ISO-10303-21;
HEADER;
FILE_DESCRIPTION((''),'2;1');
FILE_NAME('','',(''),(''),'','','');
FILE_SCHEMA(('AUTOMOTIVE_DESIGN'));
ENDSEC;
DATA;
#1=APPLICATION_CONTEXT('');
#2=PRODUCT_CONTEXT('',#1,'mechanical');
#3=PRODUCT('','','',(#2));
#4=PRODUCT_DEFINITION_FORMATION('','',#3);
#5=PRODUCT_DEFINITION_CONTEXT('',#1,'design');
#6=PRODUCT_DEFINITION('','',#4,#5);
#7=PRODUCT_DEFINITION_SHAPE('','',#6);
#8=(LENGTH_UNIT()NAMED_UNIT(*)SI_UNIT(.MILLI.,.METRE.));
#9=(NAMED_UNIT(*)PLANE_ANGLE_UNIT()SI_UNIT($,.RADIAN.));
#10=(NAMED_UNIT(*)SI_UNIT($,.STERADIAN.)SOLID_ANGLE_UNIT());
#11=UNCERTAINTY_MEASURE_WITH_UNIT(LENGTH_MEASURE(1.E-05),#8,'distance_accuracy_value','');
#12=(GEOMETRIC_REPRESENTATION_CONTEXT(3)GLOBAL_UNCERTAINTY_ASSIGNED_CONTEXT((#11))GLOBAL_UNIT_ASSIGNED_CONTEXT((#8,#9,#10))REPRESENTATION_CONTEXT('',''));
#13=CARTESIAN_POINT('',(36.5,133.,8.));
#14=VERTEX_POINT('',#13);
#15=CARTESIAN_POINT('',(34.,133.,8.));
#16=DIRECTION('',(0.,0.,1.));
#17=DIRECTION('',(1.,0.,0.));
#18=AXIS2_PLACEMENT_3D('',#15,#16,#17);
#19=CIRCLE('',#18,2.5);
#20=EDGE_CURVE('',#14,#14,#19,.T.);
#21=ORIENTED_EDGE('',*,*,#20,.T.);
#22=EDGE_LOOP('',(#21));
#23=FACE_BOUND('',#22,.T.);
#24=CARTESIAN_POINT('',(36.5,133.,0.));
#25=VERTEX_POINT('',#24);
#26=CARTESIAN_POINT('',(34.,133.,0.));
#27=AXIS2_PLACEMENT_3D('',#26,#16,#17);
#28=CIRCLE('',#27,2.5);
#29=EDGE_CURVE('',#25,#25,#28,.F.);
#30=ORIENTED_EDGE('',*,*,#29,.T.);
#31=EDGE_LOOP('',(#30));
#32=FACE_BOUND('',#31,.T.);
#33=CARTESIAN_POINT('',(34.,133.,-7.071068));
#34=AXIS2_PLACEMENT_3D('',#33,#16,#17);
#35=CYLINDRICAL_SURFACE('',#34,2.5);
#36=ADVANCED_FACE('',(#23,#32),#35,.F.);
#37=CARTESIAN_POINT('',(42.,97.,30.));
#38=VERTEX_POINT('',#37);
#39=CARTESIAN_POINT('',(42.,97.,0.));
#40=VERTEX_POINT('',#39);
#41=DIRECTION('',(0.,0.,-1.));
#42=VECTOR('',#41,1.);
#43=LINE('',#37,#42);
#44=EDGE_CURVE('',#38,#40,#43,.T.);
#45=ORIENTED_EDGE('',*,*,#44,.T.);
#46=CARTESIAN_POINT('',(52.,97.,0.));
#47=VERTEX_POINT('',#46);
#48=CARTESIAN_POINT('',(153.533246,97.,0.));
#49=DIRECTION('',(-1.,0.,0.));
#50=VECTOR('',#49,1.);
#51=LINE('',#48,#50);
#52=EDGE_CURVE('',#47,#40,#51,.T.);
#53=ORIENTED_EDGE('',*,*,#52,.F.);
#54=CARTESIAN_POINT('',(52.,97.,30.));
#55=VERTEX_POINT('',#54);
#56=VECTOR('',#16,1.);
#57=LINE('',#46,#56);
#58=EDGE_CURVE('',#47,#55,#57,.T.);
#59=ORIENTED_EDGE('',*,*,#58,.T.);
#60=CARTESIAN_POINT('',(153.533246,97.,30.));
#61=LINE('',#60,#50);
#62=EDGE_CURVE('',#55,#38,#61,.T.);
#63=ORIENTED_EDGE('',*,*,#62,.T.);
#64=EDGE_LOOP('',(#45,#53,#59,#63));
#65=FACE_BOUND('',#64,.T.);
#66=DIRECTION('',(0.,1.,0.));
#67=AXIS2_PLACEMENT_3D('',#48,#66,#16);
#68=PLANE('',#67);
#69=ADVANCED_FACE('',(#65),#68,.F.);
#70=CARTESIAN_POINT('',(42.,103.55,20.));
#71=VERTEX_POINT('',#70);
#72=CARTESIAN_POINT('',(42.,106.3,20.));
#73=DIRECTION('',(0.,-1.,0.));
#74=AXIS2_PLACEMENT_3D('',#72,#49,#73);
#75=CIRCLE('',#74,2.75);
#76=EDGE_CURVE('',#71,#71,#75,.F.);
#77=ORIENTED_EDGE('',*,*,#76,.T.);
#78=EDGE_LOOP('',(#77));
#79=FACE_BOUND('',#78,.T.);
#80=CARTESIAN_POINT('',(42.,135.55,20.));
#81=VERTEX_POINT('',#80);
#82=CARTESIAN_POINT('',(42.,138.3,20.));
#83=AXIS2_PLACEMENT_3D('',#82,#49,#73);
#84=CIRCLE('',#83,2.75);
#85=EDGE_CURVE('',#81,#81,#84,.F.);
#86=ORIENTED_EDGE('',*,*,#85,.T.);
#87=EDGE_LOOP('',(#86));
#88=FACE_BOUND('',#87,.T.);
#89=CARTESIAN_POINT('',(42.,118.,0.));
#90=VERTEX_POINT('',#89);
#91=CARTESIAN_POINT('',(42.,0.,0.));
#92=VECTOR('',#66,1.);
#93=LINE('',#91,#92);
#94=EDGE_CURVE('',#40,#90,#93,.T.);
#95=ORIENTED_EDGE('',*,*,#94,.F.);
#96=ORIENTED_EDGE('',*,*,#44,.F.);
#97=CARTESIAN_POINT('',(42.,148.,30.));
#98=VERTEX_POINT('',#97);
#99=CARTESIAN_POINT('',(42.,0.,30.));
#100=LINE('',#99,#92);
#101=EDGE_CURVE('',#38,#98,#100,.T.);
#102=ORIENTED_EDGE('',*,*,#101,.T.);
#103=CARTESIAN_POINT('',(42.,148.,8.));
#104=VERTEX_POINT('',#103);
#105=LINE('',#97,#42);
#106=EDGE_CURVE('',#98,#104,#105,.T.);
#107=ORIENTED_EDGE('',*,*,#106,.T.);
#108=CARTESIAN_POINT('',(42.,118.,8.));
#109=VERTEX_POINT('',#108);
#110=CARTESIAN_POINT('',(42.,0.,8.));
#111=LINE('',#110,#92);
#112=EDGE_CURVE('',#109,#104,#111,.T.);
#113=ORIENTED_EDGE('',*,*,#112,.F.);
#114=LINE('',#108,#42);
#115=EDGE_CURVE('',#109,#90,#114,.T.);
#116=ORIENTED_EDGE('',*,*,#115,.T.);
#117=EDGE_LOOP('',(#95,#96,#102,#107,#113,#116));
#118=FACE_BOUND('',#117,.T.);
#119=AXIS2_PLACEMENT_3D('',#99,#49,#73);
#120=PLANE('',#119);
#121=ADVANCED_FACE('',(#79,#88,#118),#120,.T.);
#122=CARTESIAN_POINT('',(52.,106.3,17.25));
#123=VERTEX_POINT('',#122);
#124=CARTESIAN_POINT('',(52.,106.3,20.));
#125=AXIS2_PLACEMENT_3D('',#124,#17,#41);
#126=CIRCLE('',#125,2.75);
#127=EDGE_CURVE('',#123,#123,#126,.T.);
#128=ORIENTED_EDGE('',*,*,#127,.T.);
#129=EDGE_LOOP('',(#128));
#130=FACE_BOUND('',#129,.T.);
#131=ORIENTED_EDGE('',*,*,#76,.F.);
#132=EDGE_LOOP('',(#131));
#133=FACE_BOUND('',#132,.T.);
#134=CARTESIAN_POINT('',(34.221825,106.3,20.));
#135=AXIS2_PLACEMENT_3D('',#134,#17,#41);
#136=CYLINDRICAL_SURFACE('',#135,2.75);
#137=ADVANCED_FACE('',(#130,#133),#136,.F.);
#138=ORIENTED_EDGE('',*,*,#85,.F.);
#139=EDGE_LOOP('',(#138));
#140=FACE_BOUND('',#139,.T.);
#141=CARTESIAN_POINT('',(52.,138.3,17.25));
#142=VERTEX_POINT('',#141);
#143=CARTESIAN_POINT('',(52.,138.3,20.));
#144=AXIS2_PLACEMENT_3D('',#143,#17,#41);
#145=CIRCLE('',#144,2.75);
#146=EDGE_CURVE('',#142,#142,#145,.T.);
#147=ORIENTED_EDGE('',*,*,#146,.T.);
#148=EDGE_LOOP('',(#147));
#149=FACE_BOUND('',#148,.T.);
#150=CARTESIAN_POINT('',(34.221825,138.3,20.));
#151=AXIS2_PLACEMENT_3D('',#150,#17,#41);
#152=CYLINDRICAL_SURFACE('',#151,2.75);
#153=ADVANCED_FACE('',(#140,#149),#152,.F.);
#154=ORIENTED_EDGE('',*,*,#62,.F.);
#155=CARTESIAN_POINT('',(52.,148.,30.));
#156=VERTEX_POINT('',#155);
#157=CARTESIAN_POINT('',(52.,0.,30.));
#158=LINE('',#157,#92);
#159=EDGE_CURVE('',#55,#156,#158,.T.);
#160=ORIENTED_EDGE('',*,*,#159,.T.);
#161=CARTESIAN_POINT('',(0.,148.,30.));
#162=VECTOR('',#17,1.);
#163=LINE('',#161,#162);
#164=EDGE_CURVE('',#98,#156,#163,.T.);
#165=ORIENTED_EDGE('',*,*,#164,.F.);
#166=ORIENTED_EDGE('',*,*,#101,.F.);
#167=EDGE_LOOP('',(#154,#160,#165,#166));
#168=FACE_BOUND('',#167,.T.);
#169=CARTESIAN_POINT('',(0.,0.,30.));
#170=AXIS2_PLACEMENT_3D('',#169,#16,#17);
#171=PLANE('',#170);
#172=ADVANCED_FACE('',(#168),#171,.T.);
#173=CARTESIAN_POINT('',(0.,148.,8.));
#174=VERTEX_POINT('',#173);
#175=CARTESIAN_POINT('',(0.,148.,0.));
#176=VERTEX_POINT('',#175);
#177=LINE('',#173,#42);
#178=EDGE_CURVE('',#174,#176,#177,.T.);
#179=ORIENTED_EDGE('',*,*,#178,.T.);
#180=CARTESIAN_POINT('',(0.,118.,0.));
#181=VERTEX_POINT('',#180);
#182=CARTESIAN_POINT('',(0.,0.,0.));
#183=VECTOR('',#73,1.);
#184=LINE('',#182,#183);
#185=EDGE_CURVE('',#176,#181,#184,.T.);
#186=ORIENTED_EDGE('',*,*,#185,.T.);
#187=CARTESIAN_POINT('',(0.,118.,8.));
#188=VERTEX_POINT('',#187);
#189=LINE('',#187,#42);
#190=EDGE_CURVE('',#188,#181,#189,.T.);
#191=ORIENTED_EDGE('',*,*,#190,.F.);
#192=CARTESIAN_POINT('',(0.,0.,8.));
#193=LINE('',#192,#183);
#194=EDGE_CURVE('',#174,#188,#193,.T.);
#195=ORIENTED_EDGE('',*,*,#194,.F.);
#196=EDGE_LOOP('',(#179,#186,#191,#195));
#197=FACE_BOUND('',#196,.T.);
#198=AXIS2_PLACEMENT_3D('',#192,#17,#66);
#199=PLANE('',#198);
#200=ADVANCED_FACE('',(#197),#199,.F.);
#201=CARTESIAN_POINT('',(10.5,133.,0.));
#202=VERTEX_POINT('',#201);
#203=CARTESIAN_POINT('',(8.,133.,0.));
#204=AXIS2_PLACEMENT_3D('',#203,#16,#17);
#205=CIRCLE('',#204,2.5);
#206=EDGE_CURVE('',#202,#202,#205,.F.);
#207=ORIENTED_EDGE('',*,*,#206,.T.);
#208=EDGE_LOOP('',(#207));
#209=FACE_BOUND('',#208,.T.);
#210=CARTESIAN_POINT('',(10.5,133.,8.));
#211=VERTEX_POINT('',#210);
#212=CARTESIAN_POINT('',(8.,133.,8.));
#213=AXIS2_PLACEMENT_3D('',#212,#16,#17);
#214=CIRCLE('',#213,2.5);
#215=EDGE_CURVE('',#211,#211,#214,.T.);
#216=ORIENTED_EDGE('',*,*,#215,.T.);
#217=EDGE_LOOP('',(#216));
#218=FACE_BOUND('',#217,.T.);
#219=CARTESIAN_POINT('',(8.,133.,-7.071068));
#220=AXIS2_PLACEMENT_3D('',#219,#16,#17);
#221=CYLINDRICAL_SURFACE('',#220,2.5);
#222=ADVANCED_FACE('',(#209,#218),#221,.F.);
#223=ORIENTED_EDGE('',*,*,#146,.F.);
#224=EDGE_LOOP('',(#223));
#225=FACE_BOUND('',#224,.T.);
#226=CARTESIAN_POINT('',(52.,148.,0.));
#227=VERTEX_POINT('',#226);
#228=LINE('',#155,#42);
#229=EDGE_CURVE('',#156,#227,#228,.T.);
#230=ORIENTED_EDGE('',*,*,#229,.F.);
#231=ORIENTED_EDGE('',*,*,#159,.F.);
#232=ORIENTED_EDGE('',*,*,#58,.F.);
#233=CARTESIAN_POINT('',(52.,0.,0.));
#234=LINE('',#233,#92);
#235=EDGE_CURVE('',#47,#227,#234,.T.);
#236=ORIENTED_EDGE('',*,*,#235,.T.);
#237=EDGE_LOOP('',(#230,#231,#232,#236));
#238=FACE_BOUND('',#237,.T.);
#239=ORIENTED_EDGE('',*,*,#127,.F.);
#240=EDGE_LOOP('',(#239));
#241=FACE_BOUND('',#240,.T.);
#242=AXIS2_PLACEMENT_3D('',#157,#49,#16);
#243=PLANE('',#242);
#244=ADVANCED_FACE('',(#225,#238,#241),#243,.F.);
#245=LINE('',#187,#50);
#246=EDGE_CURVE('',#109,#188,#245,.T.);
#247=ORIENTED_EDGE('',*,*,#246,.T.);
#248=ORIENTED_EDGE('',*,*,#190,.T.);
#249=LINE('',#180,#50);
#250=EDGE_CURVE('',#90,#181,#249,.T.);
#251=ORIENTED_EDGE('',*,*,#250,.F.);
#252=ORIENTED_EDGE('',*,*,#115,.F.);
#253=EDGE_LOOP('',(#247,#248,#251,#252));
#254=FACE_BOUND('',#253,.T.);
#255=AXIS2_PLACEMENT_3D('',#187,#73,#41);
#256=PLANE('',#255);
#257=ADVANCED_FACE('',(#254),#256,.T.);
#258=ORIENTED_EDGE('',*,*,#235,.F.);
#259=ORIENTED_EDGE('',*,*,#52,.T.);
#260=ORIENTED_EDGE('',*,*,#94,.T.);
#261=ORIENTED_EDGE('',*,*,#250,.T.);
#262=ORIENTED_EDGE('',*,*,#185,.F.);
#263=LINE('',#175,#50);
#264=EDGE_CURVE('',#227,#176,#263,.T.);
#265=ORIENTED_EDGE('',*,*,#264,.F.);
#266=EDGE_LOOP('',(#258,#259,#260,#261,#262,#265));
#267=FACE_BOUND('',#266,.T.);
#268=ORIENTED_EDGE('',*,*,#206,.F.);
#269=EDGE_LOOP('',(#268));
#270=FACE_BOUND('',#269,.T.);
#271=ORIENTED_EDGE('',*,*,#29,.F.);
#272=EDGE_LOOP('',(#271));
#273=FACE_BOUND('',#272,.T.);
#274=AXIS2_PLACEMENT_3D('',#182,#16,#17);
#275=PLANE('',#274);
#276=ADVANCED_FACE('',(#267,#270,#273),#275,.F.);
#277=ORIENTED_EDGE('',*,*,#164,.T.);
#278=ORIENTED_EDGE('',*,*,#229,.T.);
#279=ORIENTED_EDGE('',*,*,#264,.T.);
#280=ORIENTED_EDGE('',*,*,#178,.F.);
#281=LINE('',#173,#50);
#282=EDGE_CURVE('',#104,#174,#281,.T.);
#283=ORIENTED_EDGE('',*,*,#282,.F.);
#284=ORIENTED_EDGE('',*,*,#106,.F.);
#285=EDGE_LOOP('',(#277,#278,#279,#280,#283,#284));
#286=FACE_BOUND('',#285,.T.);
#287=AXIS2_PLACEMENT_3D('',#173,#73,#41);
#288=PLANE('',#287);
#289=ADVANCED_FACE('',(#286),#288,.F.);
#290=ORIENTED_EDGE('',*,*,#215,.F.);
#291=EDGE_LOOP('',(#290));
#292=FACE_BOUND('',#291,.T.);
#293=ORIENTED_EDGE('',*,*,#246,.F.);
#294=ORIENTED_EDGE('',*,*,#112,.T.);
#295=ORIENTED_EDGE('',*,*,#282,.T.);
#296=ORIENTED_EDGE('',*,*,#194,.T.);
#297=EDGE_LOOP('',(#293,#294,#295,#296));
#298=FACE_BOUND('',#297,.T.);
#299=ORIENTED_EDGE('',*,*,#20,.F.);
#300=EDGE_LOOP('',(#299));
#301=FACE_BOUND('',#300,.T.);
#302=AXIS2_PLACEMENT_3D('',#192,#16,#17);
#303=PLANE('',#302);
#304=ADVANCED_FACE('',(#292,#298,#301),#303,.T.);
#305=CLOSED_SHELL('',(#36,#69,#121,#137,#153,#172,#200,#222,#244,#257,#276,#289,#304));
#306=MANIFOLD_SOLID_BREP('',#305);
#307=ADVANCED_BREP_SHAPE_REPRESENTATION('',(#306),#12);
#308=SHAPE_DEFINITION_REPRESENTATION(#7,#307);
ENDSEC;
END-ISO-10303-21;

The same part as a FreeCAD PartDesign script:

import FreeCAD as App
import Part
import Sketcher
Q = App.Units.Quantity

doc = App.newDocument("Part")
body = doc.addObject("PartDesign::Body", "Body")

# Sketch on XY plane
sketch1 = doc.addObject("Sketcher::SketchObject", "Sketch")
body.addObject(sketch1)
sketch1.AttachmentSupport = (doc.XY_Plane, [""])
sketch1.MapMode = "FlatFace"
sketch1.addGeometry([
    Part.LineSegment(App.Vector(0, 148, 0), App.Vector(0, 118, 0)),
    Part.LineSegment(App.Vector(0, 118, 0), App.Vector(42, 118, 0)),
    Part.LineSegment(App.Vector(42, 118, 0), App.Vector(42, 148, 0)),
    Part.LineSegment(App.Vector(42, 148, 0), App.Vector(0, 148, 0)),
], False)
sketch1.addConstraint([
    Sketcher.Constraint("Coincident", 0, 2, 1, 1),
    Sketcher.Constraint("Coincident", 1, 2, 2, 1),
    Sketcher.Constraint("Coincident", 2, 2, 3, 1),
    Sketcher.Constraint("Coincident", 3, 2, 0, 1),
    Sketcher.Constraint("Vertical", 0),
    Sketcher.Constraint("Horizontal", 1),
    Sketcher.Constraint("Vertical", 2),
    Sketcher.Constraint("Horizontal", 3),
    Sketcher.Constraint("PointOnObject", 0, 2, -2),
    Sketcher.Constraint("DistanceX", 1, 1, 1, 2, Q("42 mm")),
    Sketcher.Constraint("DistanceY", 0, 2, 0, 1, Q("30 mm")),
    Sketcher.Constraint("DistanceY", -1, 1, 0, 2, Q("118 mm")),
])
pad1 = doc.addObject("PartDesign::Pad", "Pad")
body.addObject(pad1)
pad1.Profile = sketch1
pad1.Length = 8
body2 = doc.addObject("PartDesign::Body", "Body001")

# Sketch on XY plane
sketch2 = doc.addObject("Sketcher::SketchObject", "Sketch001")
body2.addObject(sketch2)
sketch2.AttachmentSupport = (doc.getObject("XY_Plane001"), [""])
sketch2.MapMode = "FlatFace"
sketch2.addGeometry([
    Part.LineSegment(App.Vector(0, 30, 0), App.Vector(0, 0, 0)),
    Part.LineSegment(App.Vector(0, 0, 0), App.Vector(42, 0, 0)),
    Part.LineSegment(App.Vector(42, 0, 0), App.Vector(42, 30, 0)),
    Part.LineSegment(App.Vector(42, 30, 0), App.Vector(0, 30, 0)),
], False)
sketch2.addConstraint([
    Sketcher.Constraint("Coincident", 0, 2, 1, 1),
    Sketcher.Constraint("Coincident", 1, 2, 2, 1),
    Sketcher.Constraint("Coincident", 2, 2, 3, 1),
    Sketcher.Constraint("Coincident", 3, 2, 0, 1),
    Sketcher.Constraint("Vertical", 0),
    Sketcher.Constraint("Horizontal", 1),
    Sketcher.Constraint("Vertical", 2),
    Sketcher.Constraint("Horizontal", 3),
    Sketcher.Constraint("Coincident", 0, 2, -1, 1),
    Sketcher.Constraint("DistanceX", 1, 1, 1, 2, Q("42 mm")),
    Sketcher.Constraint("DistanceY", 0, 2, 0, 1, Q("30 mm")),
])
pad2 = doc.addObject("PartDesign::Pad", "Pad001")
body2.addObject(pad2)
pad2.Profile = sketch2
pad2.Length = 8
body.AllowCompound = True
doc.recompute()

boolean = doc.addObject("PartDesign::Boolean", "Boolean")
body.addObject(boolean)
boolean.Type = "Fuse"
boolean.addObjects([body2])

# Sketch on XY plane
sketch3 = doc.addObject("Sketcher::SketchObject", "Sketch002")
body.addObject(sketch3)
sketch3.AttachmentSupport = (doc.XY_Plane, [""])
sketch3.MapMode = "FlatFace"
sketch3.addGeometry([
    Part.LineSegment(App.Vector(42, 0, 0), App.Vector(52, 0, 0)),
    Part.LineSegment(App.Vector(52, 0, 0), App.Vector(52, 148, 0)),
    Part.LineSegment(App.Vector(52, 148, 0), App.Vector(42, 148, 0)),
    Part.LineSegment(App.Vector(42, 148, 0), App.Vector(42, 0, 0)),
], False)
sketch3.addConstraint([
    Sketcher.Constraint("Coincident", 0, 2, 1, 1),
    Sketcher.Constraint("Coincident", 1, 2, 2, 1),
    Sketcher.Constraint("Coincident", 2, 2, 3, 1),
    Sketcher.Constraint("Coincident", 3, 2, 0, 1),
    Sketcher.Constraint("Horizontal", 0),
    Sketcher.Constraint("Vertical", 1),
    Sketcher.Constraint("Horizontal", 2),
    Sketcher.Constraint("Vertical", 3),
    Sketcher.Constraint("PointOnObject", 0, 2, -1),
    Sketcher.Constraint("DistanceX", 0, 1, 0, 2, Q("10 mm")),
    Sketcher.Constraint("DistanceY", 1, 1, 1, 2, Q("148 mm")),
    Sketcher.Constraint("DistanceX", -1, 1, 0, 2, Q("52 mm")),
])
pad3 = doc.addObject("PartDesign::Pad", "Pad002")
body.addObject(pad3)
pad3.Profile = sketch3
pad3.Length = 30

# Sketch on XY plane
sketch4 = doc.addObject("Sketcher::SketchObject", "Sketch003")
body.addObject(sketch4)
sketch4.AttachmentSupport = (doc.XY_Plane, [""])
sketch4.MapMode = "FlatFace"
sketch4.AttachmentOffset = App.Placement(App.Vector(0, 0, 8), App.Rotation())
sketch4.addGeometry([
    Part.Circle(App.Vector(8, 133, 0), App.Vector(0, 0, 1), 2.5),
    Part.Circle(App.Vector(34, 133, 0), App.Vector(0, 0, 1), 2.5),
    Part.Circle(App.Vector(34, 15, 0), App.Vector(0, 0, 1), 2.5),
    Part.Circle(App.Vector(8, 15, 0), App.Vector(0, 0, 1), 2.5),
], False)
sketch4.addConstraint([
    Sketcher.Constraint("Equal", 0, 1),
    Sketcher.Constraint("Equal", 1, 2),
    Sketcher.Constraint("Equal", 2, 3),
    Sketcher.Constraint("Horizontal", 0, 3, 1, 3),
    Sketcher.Constraint("Horizontal", 2, 3, 3, 3),
    Sketcher.Constraint("Vertical", 1, 3, 2, 3),
    Sketcher.Constraint("Vertical", 0, 3, 3, 3),
    Sketcher.Constraint("Diameter", 0, Q("5 mm")),
    Sketcher.Constraint("DistanceX", -1, 1, 0, 3, Q("8 mm")),
    Sketcher.Constraint("DistanceY", -1, 1, 0, 3, Q("133 mm")),
    Sketcher.Constraint("DistanceX", -1, 1, 1, 3, Q("34 mm")),
    Sketcher.Constraint("DistanceY", -1, 1, 2, 3, Q("15 mm")),
])
pocket1 = doc.addObject("PartDesign::Pocket", "Pocket")
body.addObject(pocket1)
pocket1.Profile = sketch4
pocket1.Length = 8

# Sketch on YZ plane
sketch5 = doc.addObject("Sketcher::SketchObject", "Sketch004")
body.addObject(sketch5)
sketch5.AttachmentSupport = (doc.YZ_Plane, [""])
sketch5.MapMode = "FlatFace"
sketch5.AttachmentOffset = App.Placement(App.Vector(0, 0, 52), App.Rotation())
sketch5.addGeometry([
    Part.Circle(App.Vector(138.3, 20, 0), App.Vector(0, 0, 1), 2.8),
    Part.Circle(App.Vector(106.3, 20, 0), App.Vector(0, 0, 1), 2.8),
    Part.Circle(App.Vector(41.2, 20, 0), App.Vector(0, 0, 1), 2.8),
    Part.Circle(App.Vector(9.2, 20, 0), App.Vector(0, 0, 1), 2.8),
], False)
sketch5.addConstraint([
    Sketcher.Constraint("Equal", 0, 1),
    Sketcher.Constraint("Equal", 1, 2),
    Sketcher.Constraint("Equal", 2, 3),
    Sketcher.Constraint("Horizontal", 0, 3, 1, 3),
    Sketcher.Constraint("Horizontal", 1, 3, 2, 3),
    Sketcher.Constraint("Horizontal", 2, 3, 3, 3),
    Sketcher.Constraint("Diameter", 0, Q("5.5 mm")),
    Sketcher.Constraint("DistanceY", -1, 1, 0, 3, Q("20 mm")),
    Sketcher.Constraint("DistanceX", 1, 3, 0, 3, Q("32 mm")),
    Sketcher.Constraint("DistanceX", 3, 3, 2, 3, Q("32 mm")),
    Sketcher.Constraint("DistanceX", -1, 1, 0, 3, Q("138.3 mm")),
    Sketcher.Constraint("DistanceX", -1, 1, 2, 3, Q("41.2 mm")),
])
pocket2 = doc.addObject("PartDesign::Pocket", "Pocket001")
body.addObject(pocket2)
pocket2.Profile = sketch5
pocket2.Length = 10

# Sketch on YZ plane
sketch6 = doc.addObject("Sketcher::SketchObject", "Sketch005")
body.addObject(sketch6)
sketch6.AttachmentSupport = (doc.YZ_Plane, [""])
sketch6.MapMode = "FlatFace"
sketch6.addGeometry([
    Part.LineSegment(App.Vector(97, 0, 0), App.Vector(0, 0, 0)),
    Part.LineSegment(App.Vector(0, 0, 0), App.Vector(0, 30, 0)),
    Part.LineSegment(App.Vector(0, 30, 0), App.Vector(97, 30, 0)),
    Part.LineSegment(App.Vector(97, 30, 0), App.Vector(97, 0, 0)),
], False)
sketch6.addConstraint([
    Sketcher.Constraint("Coincident", 0, 2, 1, 1),
    Sketcher.Constraint("Coincident", 1, 2, 2, 1),
    Sketcher.Constraint("Coincident", 2, 2, 3, 1),
    Sketcher.Constraint("Coincident", 3, 2, 0, 1),
    Sketcher.Constraint("Horizontal", 0),
    Sketcher.Constraint("Vertical", 1),
    Sketcher.Constraint("Horizontal", 2),
    Sketcher.Constraint("Vertical", 3),
    Sketcher.Constraint("Coincident", 0, 2, -1, 1),
    Sketcher.Constraint("DistanceX", 0, 2, 0, 1, Q("97 mm")),
    Sketcher.Constraint("DistanceY", 1, 1, 1, 2, Q("30 mm")),
])
pocket3 = doc.addObject("PartDesign::Pocket", "Pocket002")
body.addObject(pocket3)
pocket3.Profile = sketch6
pocket3.Length = 52
pocket3.Reversed = True

doc.recompute()
